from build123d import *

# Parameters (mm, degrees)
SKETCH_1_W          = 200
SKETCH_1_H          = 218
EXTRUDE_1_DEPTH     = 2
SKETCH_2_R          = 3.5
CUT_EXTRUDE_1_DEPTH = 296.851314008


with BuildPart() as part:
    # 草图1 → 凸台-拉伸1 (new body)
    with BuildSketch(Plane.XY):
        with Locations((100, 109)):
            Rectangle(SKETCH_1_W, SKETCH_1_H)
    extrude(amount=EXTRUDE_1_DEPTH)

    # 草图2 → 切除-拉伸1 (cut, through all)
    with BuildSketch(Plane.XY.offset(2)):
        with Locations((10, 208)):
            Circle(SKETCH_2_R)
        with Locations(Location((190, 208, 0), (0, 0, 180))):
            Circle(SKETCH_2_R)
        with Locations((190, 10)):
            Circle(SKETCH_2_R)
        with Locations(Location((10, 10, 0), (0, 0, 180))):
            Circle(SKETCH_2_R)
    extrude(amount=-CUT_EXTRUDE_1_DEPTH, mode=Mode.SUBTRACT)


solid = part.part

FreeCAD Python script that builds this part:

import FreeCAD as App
import Part
import Sketcher

V = App.Vector


def add_polygon(sketch, points):
    """Adds a closed chain of lines whose ends are joined by coincident constraints."""
    first, n = sketch.GeometryCount, len(points)
    for a, b in zip(points, points[1:] + points[:1]):
        sketch.addGeometry(Part.LineSegment(App.Vector(*a, 0), App.Vector(*b, 0)), False)
    for i in range(n):
        sketch.addConstraint(Sketcher.Constraint("Coincident", first + i, 2, first + (i + 1) % n, 1))

doc = App.newDocument("Part")
params = doc.addObject("Spreadsheet::Sheet", "Params")
for row, (alias, value) in enumerate([
    ("sketch1_width", "200 mm"),
    ("sketch1_height", "218 mm"),
    ("pad1_length", "2 mm"),
    ("sketch2_diameter", "7 mm"),
], start=1):
    params.set(f"A{row}", alias)
    params.set(f"B{row}", "=" + value)
    params.setAlias(f"B{row}", alias)

body = doc.addObject("PartDesign::Body", "Body")

# Sketch on XY plane
sketch1 = body.newObject("Sketcher::SketchObject", "Sketch")
sketch1.AttachmentSupport = (doc.getObject("XY_Plane"), [""])
sketch1.MapMode = "FlatFace"
add_polygon(sketch1, [(0, 218), (0, 0), (200, 0), (200, 218)])  # lines 0-3
sketch1.addConstraint(Sketcher.Constraint("Vertical", 0))
sketch1.addConstraint(Sketcher.Constraint("Horizontal", 1))
sketch1.addConstraint(Sketcher.Constraint("Vertical", 2))
sketch1.addConstraint(Sketcher.Constraint("Horizontal", 3))
sketch1.addConstraint(Sketcher.Constraint("Coincident", 0, 2, -1, 1))
sketch1.addConstraint(Sketcher.Constraint("DistanceX", 1, 1, 1, 2, 200.0))
sketch1.addConstraint(Sketcher.Constraint("DistanceY", 0, 2, 0, 1, 218.0))
sketch1.setExpression("Constraints[9]", "Params.sketch1_width")
sketch1.setExpression("Constraints[10]", "Params.sketch1_height")
pad1 = body.newObject("PartDesign::Pad", "Pad")
pad1.Profile = sketch1
pad1.setExpression("Length", "Params.pad1_length")

# Sketch on XY plane
sketch2 = body.newObject("Sketcher::SketchObject", "Sketch001")
sketch2.AttachmentSupport = (doc.getObject("XY_Plane"), [""])
sketch2.MapMode = "FlatFace"
sketch2.AttachmentOffset = App.Placement(V(0, 0, 2), App.Rotation())
sketch2.addGeometry(Part.Circle(V(10, 208, 0), V(0, 0, 1), 3.5), False)
sketch2.addGeometry(Part.Circle(V(190, 208, 0), V(0, 0, 1), 3.5), False)
sketch2.addGeometry(Part.Circle(V(190, 10, 0), V(0, 0, 1), 3.5), False)
sketch2.addGeometry(Part.Circle(V(10, 10, 0), V(0, 0, 1), 3.5), False)
sketch2.addConstraint(Sketcher.Constraint("Equal", 0, 1))
sketch2.addConstraint(Sketcher.Constraint("Equal", 1, 2))
sketch2.addConstraint(Sketcher.Constraint("Equal", 2, 3))
sketch2.addConstraint(Sketcher.Constraint("Horizontal", 0, 3, 1, 3))
sketch2.addConstraint(Sketcher.Constraint("Horizontal", 2, 3, 3, 3))
sketch2.addConstraint(Sketcher.Constraint("Vertical", 1, 3, 2, 3))
sketch2.addConstraint(Sketcher.Constraint("Vertical", 0, 3, 3, 3))
sketch2.addConstraint(Sketcher.Constraint("Diameter", 0, 7.0))
sketch2.addConstraint(Sketcher.Constraint("DistanceX", -1, 1, 0, 3, 10.0))
sketch2.addConstraint(Sketcher.Constraint("DistanceY", -1, 1, 0, 3, 208.0))
sketch2.addConstraint(Sketcher.Constraint("DistanceX", -1, 1, 1, 3, 190.0))
sketch2.addConstraint(Sketcher.Constraint("DistanceY", -1, 1, 2, 3, 10.0))
sketch2.setExpression("Constraints[7]", "Params.sketch2_diameter")
pocket1 = body.newObject("PartDesign::Pocket", "Pocket")
pocket1.Profile = sketch2
pocket1.Type = "ThroughAll"

doc.recompute()
